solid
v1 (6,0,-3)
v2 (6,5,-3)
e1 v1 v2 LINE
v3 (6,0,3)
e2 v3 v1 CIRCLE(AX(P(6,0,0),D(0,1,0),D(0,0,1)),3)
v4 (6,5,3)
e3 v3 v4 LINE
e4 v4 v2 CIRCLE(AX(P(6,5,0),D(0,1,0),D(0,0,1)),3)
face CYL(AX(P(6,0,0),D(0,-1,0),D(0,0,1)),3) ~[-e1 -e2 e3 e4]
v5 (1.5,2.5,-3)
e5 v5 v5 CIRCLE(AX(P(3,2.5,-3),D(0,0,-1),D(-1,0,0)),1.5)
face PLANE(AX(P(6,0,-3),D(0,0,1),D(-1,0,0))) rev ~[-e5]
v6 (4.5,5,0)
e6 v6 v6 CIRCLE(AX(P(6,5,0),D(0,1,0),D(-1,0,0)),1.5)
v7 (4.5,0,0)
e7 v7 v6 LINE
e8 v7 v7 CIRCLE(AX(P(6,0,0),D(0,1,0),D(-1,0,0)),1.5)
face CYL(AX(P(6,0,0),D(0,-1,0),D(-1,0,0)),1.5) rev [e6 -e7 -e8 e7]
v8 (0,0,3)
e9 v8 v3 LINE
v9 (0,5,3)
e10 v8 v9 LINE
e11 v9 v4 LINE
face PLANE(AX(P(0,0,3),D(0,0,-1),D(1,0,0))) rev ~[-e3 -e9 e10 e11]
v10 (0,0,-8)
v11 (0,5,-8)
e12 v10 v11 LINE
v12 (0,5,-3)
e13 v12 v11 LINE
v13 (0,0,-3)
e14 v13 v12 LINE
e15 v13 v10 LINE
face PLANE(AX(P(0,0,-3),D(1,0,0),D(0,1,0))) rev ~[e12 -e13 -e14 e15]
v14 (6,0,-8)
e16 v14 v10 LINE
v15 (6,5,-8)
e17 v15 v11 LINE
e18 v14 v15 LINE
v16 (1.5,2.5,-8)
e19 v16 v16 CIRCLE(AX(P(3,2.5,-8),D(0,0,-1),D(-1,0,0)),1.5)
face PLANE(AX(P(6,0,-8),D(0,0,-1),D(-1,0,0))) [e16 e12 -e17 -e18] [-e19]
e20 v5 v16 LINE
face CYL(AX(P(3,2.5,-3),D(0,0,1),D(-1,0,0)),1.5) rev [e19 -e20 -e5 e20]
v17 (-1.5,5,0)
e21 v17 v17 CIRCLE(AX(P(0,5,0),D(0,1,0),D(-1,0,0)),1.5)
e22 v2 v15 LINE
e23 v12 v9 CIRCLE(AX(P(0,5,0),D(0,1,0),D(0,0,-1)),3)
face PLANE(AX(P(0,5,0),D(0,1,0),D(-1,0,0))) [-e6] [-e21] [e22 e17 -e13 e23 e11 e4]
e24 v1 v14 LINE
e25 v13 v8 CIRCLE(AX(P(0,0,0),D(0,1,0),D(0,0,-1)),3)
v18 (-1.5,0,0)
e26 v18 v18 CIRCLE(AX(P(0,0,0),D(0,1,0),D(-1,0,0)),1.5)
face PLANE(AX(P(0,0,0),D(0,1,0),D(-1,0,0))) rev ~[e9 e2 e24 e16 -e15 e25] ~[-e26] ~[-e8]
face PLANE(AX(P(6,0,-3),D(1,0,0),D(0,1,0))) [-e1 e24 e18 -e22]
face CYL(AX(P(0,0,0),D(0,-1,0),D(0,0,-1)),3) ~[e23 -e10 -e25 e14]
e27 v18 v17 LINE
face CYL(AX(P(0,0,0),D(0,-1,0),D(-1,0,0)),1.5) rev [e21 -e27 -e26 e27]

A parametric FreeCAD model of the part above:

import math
import FreeCAD as App
import Part
import Sketcher
from FreeCAD import Vector


def add_polygon(sketch, points):
    """Adds a closed chain of lines whose ends are joined by coincident constraints."""
    first, n = sketch.GeometryCount, len(points)
    for a, b in zip(points, points[1:] + points[:1]):
        sketch.addGeometry(Part.LineSegment(App.Vector(*a, 0), App.Vector(*b, 0)), False)
    for i in range(n):
        sketch.addConstraint(Sketcher.Constraint("Coincident", first + i, 2, first + (i + 1) % n, 1))

doc = App.newDocument("Part")
body = doc.addObject("PartDesign::Body", "Body")

# Sketch on XZ plane
sketch1 = doc.addObject("Sketcher::SketchObject", "Sketch")
body.addObject(sketch1)
sketch1.AttachmentSupport = (doc.XZ_Plane, [""])
sketch1.MapMode = "FlatFace"
sketch1.addGeometry([
    Part.ArcOfCircle(Part.Circle(Vector(0, 0, 0), Vector(0, 0, 1), 3), math.radians(90), math.radians(270)),  # 0
    Part.LineSegment(Vector(0, 3, 0), Vector(6, 3, 0)),  # 1
    Part.ArcOfCircle(Part.Circle(Vector(6, 0, 0), Vector(0, 0, 1), 3), math.radians(-90), math.radians(90)),  # 2
    Part.LineSegment(Vector(6, -3, 0), Vector(0, -3, 0)),  # 3
    Part.Circle(Vector(6, 0, 0), Vector(0, 0, 1), 1.5),  # 4
    Part.Circle(Vector(0, 0, 0), Vector(0, 0, 1), 1.5),  # 5
], False)
sketch1.addConstraint([
    Sketcher.Constraint("Tangent", 0, 1, 1, 1),
    Sketcher.Constraint("Tangent", 1, 2, 2, 2),
    Sketcher.Constraint("Tangent", 2, 1, 3, 1),
    Sketcher.Constraint("Tangent", 3, 2, 0, 2),
    Sketcher.Constraint("Horizontal", 1),
    Sketcher.Constraint("Horizontal", 3),
    Sketcher.Constraint("Coincident", 0, 3, -1, 1),
    Sketcher.Constraint("Coincident", 5, 3, -1, 1),
    Sketcher.Constraint("Coincident", 4, 3, 2, 3),
    Sketcher.Constraint("Equal", 4, 5),
    Sketcher.Constraint("Diameter", 4, 3.0),
    Sketcher.Constraint("Radius", 0, 3.0),
    Sketcher.Constraint("DistanceX", 1, 1, 1, 2, 6.0),
])
pad1 = doc.addObject("PartDesign::Pad", "Pad")
body.addObject(pad1)
pad1.Profile = sketch1
pad1.Length = 5
pad1.Reversed = True

# Sketch on XY plane
sketch2 = doc.addObject("Sketcher::SketchObject", "Sketch001")
body.addObject(sketch2)
sketch2.AttachmentSupport = (doc.XY_Plane, [""])
sketch2.MapMode = "FlatFace"
sketch2.AttachmentOffset = App.Placement(Vector(0, 0, -3), App.Rotation())
add_polygon(sketch2, [(6, 5), (6, 0), (0, 0), (0, 5)])  # lines 0-3
sketch2.addGeometry(Part.Circle(Vector(3, 2.5, 0), Vector(0, 0, 1), 1.5), False)  # 4
sketch2.addConstraint([
    Sketcher.Constraint("Vertical", 0),
    Sketcher.Constraint("Horizontal", 1),
    Sketcher.Constraint("Vertical", 2),
    Sketcher.Constraint("Horizontal", 3),
    Sketcher.Constraint("Coincident", 1, 2, -1, 1),
    Sketcher.Constraint("Diameter", 4, 3.0),
    Sketcher.Constraint("DistanceX", -1, 1, 4, 3, 3.0),
    Sketcher.Constraint("DistanceX", 4, 3, 0, 2, 3.0),
    Sketcher.Constraint("DistanceY", 0, 2, 0, 1, 5.0),
    Sketcher.Constraint("DistanceY", -1, 1, 4, 3, 2.5),
])
pad2 = doc.addObject("PartDesign::Pad", "Pad001")
body.addObject(pad2)
pad2.Profile = sketch2
pad2.Length = 5
pad2.Reversed = True

doc.recompute()
